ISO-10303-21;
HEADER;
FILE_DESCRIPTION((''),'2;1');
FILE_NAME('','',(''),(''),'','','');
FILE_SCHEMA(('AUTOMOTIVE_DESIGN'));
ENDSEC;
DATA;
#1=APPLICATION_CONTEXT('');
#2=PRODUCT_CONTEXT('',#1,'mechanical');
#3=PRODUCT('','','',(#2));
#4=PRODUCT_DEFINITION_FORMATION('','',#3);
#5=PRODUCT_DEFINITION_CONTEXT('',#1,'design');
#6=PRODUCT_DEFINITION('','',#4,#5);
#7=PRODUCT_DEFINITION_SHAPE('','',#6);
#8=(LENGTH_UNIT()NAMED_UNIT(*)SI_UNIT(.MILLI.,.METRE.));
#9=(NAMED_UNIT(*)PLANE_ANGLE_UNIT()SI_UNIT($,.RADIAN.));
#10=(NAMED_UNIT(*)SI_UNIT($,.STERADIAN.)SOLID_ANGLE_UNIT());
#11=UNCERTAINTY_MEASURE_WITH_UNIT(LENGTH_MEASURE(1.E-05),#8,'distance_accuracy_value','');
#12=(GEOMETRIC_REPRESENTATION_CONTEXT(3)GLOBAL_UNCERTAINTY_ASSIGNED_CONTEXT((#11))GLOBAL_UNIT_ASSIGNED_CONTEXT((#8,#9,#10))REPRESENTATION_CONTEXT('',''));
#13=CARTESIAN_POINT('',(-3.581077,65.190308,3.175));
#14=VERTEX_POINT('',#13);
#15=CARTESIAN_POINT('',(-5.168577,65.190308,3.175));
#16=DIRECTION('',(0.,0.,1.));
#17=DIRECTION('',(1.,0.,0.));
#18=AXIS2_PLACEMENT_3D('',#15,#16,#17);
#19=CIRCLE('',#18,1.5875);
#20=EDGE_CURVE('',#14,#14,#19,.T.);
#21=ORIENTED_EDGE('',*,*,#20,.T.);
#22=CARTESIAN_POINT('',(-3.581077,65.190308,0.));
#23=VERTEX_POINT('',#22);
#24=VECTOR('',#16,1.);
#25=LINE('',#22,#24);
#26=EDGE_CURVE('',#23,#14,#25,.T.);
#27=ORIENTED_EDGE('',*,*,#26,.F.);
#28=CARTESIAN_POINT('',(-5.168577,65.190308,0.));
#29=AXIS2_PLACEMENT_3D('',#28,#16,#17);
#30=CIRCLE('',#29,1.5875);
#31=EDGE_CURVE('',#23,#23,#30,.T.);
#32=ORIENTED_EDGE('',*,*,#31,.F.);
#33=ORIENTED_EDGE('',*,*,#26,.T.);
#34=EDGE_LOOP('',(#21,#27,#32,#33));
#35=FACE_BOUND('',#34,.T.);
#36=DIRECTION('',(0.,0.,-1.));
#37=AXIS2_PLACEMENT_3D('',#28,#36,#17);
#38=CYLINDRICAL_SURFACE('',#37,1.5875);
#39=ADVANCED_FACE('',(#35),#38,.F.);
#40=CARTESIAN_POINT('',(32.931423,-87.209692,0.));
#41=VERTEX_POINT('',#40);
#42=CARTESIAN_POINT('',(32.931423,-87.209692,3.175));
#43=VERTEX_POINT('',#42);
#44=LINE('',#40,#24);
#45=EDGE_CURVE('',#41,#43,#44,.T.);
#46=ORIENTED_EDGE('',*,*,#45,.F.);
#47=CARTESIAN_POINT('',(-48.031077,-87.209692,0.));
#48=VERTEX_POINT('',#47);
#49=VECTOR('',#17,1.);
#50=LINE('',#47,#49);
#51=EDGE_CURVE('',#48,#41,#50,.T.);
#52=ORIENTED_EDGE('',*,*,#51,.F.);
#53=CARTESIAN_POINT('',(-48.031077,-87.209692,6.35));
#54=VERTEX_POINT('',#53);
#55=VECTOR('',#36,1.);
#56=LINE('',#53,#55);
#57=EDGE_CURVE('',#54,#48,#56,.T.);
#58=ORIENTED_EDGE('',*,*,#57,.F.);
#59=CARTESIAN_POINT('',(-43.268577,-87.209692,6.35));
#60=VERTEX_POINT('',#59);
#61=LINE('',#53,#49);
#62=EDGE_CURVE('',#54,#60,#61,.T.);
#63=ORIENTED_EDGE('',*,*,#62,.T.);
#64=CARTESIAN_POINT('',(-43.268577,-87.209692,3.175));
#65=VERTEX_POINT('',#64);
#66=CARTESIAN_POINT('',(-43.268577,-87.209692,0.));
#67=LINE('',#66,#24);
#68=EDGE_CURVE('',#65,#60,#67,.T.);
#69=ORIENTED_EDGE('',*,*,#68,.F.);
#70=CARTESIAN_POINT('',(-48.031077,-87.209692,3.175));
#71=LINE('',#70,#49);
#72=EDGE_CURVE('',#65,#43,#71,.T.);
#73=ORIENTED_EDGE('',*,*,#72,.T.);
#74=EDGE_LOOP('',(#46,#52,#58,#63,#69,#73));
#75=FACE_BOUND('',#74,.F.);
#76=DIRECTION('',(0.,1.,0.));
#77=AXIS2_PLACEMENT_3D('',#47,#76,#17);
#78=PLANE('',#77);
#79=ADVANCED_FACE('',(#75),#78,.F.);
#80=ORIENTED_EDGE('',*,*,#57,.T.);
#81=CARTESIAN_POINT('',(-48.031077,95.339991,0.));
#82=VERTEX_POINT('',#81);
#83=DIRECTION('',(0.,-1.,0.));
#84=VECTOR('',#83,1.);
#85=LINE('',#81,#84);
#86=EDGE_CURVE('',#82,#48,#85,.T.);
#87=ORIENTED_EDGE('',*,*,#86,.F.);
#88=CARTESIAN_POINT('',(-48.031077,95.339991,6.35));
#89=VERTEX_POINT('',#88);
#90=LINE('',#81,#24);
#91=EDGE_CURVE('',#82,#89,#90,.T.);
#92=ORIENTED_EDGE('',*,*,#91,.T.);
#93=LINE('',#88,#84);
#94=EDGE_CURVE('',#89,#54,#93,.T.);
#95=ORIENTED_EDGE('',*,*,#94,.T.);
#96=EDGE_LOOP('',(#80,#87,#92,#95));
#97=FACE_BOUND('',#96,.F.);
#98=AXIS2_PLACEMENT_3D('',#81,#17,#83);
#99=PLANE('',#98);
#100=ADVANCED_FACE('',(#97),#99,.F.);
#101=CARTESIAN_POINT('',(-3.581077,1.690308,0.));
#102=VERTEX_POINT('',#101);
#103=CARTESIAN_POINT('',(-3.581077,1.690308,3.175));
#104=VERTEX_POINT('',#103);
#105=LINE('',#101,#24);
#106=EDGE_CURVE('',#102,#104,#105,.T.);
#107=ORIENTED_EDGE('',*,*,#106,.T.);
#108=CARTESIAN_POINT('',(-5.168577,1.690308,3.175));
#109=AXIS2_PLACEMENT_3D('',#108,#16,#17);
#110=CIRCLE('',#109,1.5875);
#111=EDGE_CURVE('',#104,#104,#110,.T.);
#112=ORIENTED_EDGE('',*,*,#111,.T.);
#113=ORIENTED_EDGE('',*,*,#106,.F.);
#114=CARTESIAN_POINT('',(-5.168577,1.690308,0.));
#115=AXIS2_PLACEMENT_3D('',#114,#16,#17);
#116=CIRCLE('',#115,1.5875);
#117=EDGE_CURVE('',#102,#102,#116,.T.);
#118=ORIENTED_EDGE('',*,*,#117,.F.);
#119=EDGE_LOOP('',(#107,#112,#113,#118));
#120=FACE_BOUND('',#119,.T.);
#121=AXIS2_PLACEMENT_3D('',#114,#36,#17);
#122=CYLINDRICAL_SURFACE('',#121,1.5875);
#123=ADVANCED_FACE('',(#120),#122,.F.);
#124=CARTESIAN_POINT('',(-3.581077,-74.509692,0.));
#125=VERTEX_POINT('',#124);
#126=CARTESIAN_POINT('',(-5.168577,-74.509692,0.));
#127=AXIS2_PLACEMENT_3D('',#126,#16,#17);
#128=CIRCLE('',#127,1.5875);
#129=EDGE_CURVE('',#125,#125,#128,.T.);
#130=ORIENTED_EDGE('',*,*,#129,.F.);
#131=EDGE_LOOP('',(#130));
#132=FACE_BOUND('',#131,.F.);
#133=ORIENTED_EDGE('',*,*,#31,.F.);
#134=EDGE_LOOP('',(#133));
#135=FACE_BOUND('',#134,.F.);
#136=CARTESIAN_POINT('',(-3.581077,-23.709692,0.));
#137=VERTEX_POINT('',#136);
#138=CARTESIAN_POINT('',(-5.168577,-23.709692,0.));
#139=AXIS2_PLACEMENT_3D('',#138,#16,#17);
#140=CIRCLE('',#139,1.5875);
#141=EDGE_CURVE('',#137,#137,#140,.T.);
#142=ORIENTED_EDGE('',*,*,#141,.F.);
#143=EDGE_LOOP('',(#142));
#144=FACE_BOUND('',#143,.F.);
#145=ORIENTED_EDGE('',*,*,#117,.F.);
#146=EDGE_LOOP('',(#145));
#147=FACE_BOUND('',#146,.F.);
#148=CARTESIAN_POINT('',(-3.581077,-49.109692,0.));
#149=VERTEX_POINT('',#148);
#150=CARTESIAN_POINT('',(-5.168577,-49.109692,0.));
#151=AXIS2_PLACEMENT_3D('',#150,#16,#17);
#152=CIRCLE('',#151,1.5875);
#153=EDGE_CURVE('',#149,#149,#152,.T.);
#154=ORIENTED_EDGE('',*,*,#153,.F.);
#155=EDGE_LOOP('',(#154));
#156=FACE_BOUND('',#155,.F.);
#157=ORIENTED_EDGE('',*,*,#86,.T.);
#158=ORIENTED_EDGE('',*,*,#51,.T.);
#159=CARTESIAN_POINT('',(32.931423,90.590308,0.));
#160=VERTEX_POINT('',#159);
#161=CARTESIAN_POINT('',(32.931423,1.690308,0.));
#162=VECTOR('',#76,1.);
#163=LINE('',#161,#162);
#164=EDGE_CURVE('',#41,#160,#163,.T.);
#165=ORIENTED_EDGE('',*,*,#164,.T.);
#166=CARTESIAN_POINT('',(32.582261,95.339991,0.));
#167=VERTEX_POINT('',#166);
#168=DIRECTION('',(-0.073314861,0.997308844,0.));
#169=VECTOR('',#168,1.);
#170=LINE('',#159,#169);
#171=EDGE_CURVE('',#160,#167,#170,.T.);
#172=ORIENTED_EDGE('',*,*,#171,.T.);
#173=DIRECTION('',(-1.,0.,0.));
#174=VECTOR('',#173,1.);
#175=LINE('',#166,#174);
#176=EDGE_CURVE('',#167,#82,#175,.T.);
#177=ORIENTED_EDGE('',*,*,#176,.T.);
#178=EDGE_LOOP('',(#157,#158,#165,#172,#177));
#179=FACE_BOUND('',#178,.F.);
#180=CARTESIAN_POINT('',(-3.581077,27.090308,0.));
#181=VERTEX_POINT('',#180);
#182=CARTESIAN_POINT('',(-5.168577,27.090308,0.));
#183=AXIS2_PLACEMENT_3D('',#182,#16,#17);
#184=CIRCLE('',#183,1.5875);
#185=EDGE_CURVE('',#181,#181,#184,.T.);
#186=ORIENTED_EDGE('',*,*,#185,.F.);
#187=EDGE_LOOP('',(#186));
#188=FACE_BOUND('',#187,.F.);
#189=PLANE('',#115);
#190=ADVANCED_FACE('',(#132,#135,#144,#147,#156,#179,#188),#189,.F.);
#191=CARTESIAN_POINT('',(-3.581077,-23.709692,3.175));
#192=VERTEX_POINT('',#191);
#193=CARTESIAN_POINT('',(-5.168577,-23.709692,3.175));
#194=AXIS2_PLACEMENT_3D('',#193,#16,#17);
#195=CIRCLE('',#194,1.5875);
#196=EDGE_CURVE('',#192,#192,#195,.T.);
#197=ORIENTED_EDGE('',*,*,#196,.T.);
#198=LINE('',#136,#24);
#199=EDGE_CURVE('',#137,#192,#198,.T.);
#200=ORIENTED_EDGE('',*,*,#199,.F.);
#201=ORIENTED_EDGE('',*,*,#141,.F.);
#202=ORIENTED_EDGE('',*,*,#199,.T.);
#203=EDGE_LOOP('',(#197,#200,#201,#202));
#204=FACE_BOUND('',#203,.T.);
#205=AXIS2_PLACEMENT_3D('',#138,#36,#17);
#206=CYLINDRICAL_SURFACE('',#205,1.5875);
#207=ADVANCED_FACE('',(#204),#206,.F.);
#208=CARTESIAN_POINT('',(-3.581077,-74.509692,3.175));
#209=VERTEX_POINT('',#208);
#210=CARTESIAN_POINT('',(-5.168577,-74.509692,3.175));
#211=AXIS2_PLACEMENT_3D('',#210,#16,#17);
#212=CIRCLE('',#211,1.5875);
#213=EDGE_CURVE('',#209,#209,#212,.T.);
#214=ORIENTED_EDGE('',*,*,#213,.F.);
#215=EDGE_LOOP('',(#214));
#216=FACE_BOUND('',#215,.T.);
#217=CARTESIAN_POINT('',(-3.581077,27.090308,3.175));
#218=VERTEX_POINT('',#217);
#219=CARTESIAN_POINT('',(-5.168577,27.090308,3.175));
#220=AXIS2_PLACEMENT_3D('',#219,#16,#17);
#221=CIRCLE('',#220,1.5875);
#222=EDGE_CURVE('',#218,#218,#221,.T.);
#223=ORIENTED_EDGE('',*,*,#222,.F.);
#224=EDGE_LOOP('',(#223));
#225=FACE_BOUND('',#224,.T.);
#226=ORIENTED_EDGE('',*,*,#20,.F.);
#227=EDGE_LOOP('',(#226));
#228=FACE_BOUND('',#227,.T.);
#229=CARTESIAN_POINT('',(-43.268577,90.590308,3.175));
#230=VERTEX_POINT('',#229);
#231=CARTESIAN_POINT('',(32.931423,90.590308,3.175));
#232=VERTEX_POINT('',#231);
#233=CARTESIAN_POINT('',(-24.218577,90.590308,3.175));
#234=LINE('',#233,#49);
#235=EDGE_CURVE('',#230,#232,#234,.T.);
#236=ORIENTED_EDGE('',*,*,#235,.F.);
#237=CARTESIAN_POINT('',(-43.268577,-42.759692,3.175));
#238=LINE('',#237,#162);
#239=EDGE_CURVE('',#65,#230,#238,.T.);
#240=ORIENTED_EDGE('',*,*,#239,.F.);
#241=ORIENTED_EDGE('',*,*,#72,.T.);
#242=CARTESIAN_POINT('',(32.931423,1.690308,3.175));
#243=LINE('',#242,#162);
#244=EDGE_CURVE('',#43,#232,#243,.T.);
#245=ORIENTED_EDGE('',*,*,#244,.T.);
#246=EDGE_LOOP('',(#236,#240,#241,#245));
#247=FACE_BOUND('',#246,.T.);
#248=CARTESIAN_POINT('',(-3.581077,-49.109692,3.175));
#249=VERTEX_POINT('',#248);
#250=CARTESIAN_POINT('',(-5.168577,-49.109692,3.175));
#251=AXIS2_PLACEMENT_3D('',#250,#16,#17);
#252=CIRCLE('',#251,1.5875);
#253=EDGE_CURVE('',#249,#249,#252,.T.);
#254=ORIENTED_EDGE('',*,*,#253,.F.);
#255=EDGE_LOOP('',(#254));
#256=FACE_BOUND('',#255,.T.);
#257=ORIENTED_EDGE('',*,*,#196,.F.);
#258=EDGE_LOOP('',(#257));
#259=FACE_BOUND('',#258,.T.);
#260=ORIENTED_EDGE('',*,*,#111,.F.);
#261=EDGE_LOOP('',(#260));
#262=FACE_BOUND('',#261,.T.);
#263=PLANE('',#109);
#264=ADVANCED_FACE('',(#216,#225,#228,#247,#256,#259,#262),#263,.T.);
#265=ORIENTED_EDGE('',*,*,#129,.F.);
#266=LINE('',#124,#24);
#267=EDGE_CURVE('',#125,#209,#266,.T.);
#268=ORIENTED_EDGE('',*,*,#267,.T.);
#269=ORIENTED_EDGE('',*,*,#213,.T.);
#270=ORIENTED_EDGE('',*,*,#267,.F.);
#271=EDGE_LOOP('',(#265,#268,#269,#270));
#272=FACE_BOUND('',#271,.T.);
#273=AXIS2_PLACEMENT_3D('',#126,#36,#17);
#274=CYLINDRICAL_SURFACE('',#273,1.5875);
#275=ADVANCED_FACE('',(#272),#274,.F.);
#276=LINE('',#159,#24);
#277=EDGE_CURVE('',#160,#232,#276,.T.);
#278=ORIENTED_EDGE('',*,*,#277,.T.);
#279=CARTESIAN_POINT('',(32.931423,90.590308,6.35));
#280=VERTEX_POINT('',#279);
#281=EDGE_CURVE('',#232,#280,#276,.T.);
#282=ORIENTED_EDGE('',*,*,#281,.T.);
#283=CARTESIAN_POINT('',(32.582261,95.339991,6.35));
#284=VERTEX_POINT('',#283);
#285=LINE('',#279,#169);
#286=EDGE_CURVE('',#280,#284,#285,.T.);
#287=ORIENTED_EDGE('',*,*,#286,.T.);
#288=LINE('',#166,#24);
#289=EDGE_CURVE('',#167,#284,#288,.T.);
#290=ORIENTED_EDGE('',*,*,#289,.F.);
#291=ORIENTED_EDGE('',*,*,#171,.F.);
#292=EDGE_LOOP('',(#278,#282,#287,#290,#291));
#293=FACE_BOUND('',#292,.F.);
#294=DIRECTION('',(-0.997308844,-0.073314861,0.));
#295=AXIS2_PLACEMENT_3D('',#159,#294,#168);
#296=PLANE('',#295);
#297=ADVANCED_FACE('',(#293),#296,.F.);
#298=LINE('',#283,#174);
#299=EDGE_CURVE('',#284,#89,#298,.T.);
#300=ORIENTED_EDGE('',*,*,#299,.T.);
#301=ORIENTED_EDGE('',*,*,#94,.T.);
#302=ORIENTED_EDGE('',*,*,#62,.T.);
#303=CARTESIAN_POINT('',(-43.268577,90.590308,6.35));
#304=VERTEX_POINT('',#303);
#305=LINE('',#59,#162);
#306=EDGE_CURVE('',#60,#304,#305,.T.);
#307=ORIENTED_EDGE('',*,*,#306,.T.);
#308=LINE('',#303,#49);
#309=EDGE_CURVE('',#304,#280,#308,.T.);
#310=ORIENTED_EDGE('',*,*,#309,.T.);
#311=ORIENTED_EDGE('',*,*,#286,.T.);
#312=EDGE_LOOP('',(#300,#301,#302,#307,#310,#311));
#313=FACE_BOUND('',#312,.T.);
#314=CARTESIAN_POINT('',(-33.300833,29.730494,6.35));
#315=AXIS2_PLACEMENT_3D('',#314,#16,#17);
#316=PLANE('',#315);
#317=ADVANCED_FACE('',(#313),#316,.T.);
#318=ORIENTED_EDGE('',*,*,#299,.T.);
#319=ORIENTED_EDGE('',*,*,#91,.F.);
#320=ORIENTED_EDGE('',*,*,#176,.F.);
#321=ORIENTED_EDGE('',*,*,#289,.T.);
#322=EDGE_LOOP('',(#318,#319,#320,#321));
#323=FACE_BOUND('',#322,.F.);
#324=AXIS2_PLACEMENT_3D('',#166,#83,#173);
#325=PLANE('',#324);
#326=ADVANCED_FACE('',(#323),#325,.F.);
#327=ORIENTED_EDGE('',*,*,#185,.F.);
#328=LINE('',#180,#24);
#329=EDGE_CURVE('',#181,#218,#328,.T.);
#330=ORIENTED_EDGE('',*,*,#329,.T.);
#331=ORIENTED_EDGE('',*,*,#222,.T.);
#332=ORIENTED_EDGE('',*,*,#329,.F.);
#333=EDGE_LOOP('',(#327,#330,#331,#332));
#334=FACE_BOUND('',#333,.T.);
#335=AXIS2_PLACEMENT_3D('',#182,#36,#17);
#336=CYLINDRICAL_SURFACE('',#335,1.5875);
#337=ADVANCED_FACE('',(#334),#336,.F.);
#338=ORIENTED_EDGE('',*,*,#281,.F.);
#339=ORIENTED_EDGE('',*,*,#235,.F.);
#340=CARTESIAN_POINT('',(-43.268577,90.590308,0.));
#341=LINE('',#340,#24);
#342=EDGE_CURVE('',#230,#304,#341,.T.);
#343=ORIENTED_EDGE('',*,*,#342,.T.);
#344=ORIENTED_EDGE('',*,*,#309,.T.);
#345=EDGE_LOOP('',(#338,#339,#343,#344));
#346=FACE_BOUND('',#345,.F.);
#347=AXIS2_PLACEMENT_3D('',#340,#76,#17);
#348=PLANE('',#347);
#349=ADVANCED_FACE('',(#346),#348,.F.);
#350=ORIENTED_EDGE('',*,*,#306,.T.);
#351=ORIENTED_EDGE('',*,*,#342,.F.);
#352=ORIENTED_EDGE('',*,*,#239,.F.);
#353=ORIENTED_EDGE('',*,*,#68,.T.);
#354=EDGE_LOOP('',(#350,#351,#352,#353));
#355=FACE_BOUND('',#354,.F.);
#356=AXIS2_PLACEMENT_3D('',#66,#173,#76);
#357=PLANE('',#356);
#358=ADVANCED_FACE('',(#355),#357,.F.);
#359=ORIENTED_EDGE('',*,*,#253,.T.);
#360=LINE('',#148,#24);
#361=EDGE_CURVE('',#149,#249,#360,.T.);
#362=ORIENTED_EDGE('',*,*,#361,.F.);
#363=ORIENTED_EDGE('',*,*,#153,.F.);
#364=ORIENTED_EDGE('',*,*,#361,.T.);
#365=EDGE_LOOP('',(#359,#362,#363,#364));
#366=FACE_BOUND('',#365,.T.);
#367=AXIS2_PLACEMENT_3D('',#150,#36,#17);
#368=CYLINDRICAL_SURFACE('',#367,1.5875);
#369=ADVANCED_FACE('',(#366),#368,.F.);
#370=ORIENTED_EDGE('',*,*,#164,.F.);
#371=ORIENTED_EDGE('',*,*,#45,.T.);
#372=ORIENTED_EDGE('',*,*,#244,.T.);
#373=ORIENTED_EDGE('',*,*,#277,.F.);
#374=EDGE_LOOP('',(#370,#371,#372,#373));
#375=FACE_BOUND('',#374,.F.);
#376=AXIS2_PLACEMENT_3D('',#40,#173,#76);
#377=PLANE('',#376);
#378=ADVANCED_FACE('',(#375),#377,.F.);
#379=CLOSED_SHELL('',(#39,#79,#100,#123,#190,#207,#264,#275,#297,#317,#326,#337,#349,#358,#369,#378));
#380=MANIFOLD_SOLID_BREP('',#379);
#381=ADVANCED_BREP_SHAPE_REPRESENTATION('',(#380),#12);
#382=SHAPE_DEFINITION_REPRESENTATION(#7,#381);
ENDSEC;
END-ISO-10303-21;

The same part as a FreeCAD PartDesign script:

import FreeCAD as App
import Part
import Sketcher
Q = App.Units.Quantity


def add_polygon(sketch, points):
    """Adds a closed chain of lines whose ends are joined by coincident constraints."""
    first, n = sketch.GeometryCount, len(points)
    for a, b in zip(points, points[1:] + points[:1]):
        sketch.addGeometry(Part.LineSegment(App.Vector(*a, 0), App.Vector(*b, 0)), False)
    for i in range(n):
        sketch.addConstraint(Sketcher.Constraint("Coincident", first + i, 2, first + (i + 1) % n, 1))

doc = App.newDocument("Part")
body = doc.addObject("PartDesign::Body", "Body")

# Sketch on XY plane
sketch1 = doc.addObject("Sketcher::SketchObject", "Sketch")
body.addObject(sketch1)
sketch1.AttachmentSupport = (doc.XY_Plane, [""])
sketch1.MapMode = "FlatFace"
add_polygon(sketch1, [(-48, -87.2), (-43.3, -87.2), (-43.3, 90.6), (32.9, 90.6), (32.6, 95.3), (-48, 95.3)])  # lines 0-5
sketch1.addConstraint(Sketcher.Constraint("Horizontal", 0))
sketch1.addConstraint(Sketcher.Constraint("Vertical", 1))
sketch1.addConstraint(Sketcher.Constraint("Horizontal", 2))
sketch1.addConstraint(Sketcher.Constraint("Horizontal", 4))
sketch1.addConstraint(Sketcher.Constraint("Vertical", 5))
sketch1.addConstraint(Sketcher.Constraint("DistanceX", 2, 1, 2, 2, Q("3 in")))
sketch1.addConstraint(Sketcher.Constraint("DistanceY", 1, 1, 1, 2, Q("7 in")))
sketch1.addConstraint(Sketcher.Constraint("DistanceX", 0, 1, 0, 2, Q("0.1875 in")))
sketch1.addConstraint(Sketcher.Constraint("Distance", 3, Q("0.1875 in")))
sketch1.addConstraint(Sketcher.Constraint("DistanceX", 4, 2, 4, 1, 80.613338))
sketch1.addConstraint(Sketcher.Constraint("DistanceX", -1, 1, 3, 2, 32.582261))
sketch1.addConstraint(Sketcher.Constraint("DistanceY", -1, 1, 3, 2, 95.339991))
pad1 = doc.addObject("PartDesign::Pad", "Pad")
body.addObject(pad1)
pad1.Profile = sketch1
pad1.Length = Q("0.25 in")

# Sketch on XY plane
sketch2 = doc.addObject("Sketcher::SketchObject", "Sketch001")
body.addObject(sketch2)
sketch2.AttachmentSupport = (doc.XY_Plane, [""])
sketch2.MapMode = "FlatFace"
add_polygon(sketch2, [(32.9, -87.2), (32.9, 90.6), (32.6, 95.3), (-48, 95.3), (-48, -87.2)])  # lines 0-4
sketch2.addGeometry(Part.Circle(App.Vector(-5.2, -74.5, 0), App.Vector(0, 0, 1), 1.6), False)  # 5
sketch2.addGeometry(Part.Circle(App.Vector(-5.2, -49.1, 0), App.Vector(0, 0, 1), 1.6), False)  # 6
sketch2.addGeometry(Part.Circle(App.Vector(-5.2, -23.7, 0), App.Vector(0, 0, 1), 1.6), False)  # 7
sketch2.addGeometry(Part.Circle(App.Vector(-5.2, 1.7, 0), App.Vector(0, 0, 1), 1.6), False)  # 8
sketch2.addGeometry(Part.Circle(App.Vector(-5.2, 27.1, 0), App.Vector(0, 0, 1), 1.6), False)  # 9
sketch2.addGeometry(Part.Circle(App.Vector(-5.2, 65.2, 0), App.Vector(0, 0, 1), 1.6), False)  # 10
sketch2.addConstraint(Sketcher.Constraint("Vertical", 0))
sketch2.addConstraint(Sketcher.Constraint("Horizontal", 2))
sketch2.addConstraint(Sketcher.Constraint("Vertical", 3))
sketch2.addConstraint(Sketcher.Constraint("Horizontal", 4))
sketch2.addConstraint(Sketcher.Constraint("Equal", 5, 6))
sketch2.addConstraint(Sketcher.Constraint("Equal", 6, 7))
sketch2.addConstraint(Sketcher.Constraint("Equal", 7, 8))
sketch2.addConstraint(Sketcher.Constraint("Equal", 8, 9))
sketch2.addConstraint(Sketcher.Constraint("Equal", 9, 10))
sketch2.addConstraint(Sketcher.Constraint("Vertical", 5, 3, 6, 3))
sketch2.addConstraint(Sketcher.Constraint("Vertical", 6, 3, 7, 3))
sketch2.addConstraint(Sketcher.Constraint("Vertical", 7, 3, 8, 3))
sketch2.addConstraint(Sketcher.Constraint("Vertical", 8, 3, 9, 3))
sketch2.addConstraint(Sketcher.Constraint("Vertical", 9, 3, 10, 3))
sketch2.addConstraint(Sketcher.Constraint("DistanceY", 0, 1, 0, 2, Q("7 in")))
sketch2.addConstraint(Sketcher.Constraint("Diameter", 5, Q("0.125 in")))
sketch2.addConstraint(Sketcher.Constraint("DistanceY", 5, 3, 6, 3, Q("1 in")))
sketch2.addConstraint(Sketcher.Constraint("DistanceY", 6, 3, 7, 3, Q("1 in")))
sketch2.addConstraint(Sketcher.Constraint("DistanceY", 7, 3, 8, 3, Q("1 in")))
sketch2.addConstraint(Sketcher.Constraint("DistanceY", 8, 3, 9, 3, Q("1 in")))
sketch2.addConstraint(Sketcher.Constraint("DistanceY", 10, 3, 0, 2, Q("1 in")))
sketch2.addConstraint(Sketcher.Constraint("DistanceY", 9, 3, 10, 3, Q("1.5 in")))
sketch2.addConstraint(Sketcher.Constraint("DistanceX", 10, 3, 0, 2, Q("1.5 in")))
sketch2.addConstraint(Sketcher.Constraint("DistanceX", 4, 1, 4, 2, Q("3.1875 in")))
sketch2.addConstraint(Sketcher.Constraint("Distance", 1, Q("0.1875 in")))
sketch2.addConstraint(Sketcher.Constraint("DistanceX", 2, 2, 2, 1, 80.613338))
sketch2.addConstraint(Sketcher.Constraint("DistanceY", 5, 3, -1, 1, 74.509692))
sketch2.addConstraint(Sketcher.Constraint("DistanceX", -1, 1, 1, 2, 32.582261))
pad2 = doc.addObject("PartDesign::Pad", "Pad001")
body.addObject(pad2)
pad2.Profile = sketch2
pad2.Length = Q("0.125 in")

doc.recompute()
